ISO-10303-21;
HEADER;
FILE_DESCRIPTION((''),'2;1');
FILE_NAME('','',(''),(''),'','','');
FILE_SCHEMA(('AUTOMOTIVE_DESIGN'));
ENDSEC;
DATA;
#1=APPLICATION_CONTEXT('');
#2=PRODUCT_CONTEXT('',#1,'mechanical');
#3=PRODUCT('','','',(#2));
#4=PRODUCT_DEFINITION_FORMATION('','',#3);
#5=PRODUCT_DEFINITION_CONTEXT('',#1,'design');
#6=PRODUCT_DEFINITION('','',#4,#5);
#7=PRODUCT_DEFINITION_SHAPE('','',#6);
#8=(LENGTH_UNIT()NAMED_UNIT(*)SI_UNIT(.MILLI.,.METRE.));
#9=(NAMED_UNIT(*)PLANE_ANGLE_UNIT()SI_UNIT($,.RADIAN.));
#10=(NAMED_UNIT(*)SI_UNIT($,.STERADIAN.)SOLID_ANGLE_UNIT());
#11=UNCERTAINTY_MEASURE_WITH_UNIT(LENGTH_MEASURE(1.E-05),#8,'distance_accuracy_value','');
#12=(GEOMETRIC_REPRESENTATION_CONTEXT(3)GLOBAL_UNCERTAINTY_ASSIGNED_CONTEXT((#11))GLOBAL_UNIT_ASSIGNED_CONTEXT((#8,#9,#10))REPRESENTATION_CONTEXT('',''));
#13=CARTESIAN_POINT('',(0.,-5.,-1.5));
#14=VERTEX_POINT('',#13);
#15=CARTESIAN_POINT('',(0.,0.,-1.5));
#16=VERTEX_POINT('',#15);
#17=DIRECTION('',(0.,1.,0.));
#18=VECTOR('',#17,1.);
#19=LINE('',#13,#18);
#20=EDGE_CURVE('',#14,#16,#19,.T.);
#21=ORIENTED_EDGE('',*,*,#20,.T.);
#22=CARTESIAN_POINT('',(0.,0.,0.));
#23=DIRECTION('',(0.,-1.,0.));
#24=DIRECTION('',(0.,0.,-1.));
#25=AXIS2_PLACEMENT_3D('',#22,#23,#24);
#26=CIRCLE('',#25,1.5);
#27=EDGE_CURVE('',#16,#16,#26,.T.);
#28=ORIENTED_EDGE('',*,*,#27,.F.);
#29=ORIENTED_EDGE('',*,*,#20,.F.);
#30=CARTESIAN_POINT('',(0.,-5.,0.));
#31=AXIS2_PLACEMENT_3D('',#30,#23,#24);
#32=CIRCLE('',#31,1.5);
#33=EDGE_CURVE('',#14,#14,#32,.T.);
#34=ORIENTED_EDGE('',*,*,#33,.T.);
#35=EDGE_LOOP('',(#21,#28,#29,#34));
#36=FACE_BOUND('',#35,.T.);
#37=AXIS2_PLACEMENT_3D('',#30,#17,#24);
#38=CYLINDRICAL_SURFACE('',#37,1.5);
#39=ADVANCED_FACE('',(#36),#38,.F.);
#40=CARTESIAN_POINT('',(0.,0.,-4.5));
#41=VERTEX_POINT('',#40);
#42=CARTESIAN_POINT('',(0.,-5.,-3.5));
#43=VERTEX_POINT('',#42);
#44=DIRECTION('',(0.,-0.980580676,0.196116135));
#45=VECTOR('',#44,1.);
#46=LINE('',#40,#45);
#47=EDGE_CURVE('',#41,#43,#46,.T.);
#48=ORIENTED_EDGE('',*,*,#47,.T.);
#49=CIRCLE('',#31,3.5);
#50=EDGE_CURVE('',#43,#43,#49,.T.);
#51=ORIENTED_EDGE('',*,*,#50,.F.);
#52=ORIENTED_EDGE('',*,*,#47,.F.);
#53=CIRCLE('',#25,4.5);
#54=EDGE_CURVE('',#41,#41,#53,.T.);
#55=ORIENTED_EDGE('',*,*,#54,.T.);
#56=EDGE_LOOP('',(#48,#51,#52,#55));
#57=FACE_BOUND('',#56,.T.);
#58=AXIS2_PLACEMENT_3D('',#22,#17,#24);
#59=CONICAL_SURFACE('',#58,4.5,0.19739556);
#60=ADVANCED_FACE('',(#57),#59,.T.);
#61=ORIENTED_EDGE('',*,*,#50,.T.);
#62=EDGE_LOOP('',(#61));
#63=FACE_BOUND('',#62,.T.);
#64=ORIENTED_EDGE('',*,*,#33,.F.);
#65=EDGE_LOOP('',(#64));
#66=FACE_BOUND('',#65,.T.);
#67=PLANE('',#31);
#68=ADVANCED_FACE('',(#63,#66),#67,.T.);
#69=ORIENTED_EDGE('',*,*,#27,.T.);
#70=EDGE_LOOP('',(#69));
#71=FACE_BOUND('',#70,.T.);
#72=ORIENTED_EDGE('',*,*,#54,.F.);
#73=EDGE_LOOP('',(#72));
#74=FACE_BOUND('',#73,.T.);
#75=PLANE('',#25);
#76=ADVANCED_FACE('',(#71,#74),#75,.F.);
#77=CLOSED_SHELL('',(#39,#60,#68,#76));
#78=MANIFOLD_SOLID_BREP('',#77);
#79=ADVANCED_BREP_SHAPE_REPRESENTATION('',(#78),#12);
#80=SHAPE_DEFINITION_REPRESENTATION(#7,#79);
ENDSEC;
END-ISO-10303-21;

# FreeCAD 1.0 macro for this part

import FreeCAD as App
import Part
import Sketcher

V = App.Vector
Q = App.Units.Quantity


def add_polygon(sketch, points):
    """Adds a closed chain of lines whose ends are joined by coincident constraints."""
    first, n = sketch.GeometryCount, len(points)
    for a, b in zip(points, points[1:] + points[:1]):
        sketch.addGeometry(Part.LineSegment(App.Vector(*a, 0), App.Vector(*b, 0)), False)
    for i in range(n):
        sketch.addConstraint(Sketcher.Constraint("Coincident", first + i, 2, first + (i + 1) % n, 1))

doc = App.newDocument("Part")
params = doc.addObject("Spreadsheet::Sheet", "Params")
for row, (alias, value) in enumerate([
    ("sketch1_width", "5 mm"),
    ("sketch1_height", "3 mm"),
    ("sketch1_height2", "2 mm"),
    ("revolution_angle", "360 deg"),
], start=1):
    params.set(f"A{row}", alias)
    params.set(f"B{row}", "=" + value)
    params.setAlias(f"B{row}", alias)

body = doc.addObject("PartDesign::Body", "Body")

# Sketch on YZ plane
sketch1 = body.newObject("Sketcher::SketchObject", "Sketch")
sketch1.AttachmentSupport = (doc.getObject("YZ_Plane"), [""])
sketch1.MapMode = "FlatFace"
add_polygon(sketch1, [(0, -4.5), (0, -1.5), (-5, -1.5), (-5, -3.5)])  # lines 0-3
sketch1.addConstraint([
    Sketcher.Constraint("Vertical", 0),
    Sketcher.Constraint("Horizontal", 1),
    Sketcher.Constraint("Vertical", 2),
    Sketcher.Constraint("PointOnObject", 0, 2, -2),
    Sketcher.Constraint("DistanceX", 1, 2, 1, 1, Q("5 mm")),
    Sketcher.Constraint("DistanceY", 0, 1, 0, 2, Q("3 mm")),
    Sketcher.Constraint("DistanceY", 2, 2, 2, 1, Q("2 mm")),
    Sketcher.Constraint("DistanceY", 0, 2, -1, 1, Q("1.5 mm")),
])
sketch1.setExpression("Constraints[8]", "Params.sketch1_width")
sketch1.setExpression("Constraints[9]", "Params.sketch1_height")
sketch1.setExpression("Constraints[10]", "Params.sketch1_height2")
revolution = body.newObject("PartDesign::Revolution", "Revolution")
revolution.Profile = sketch1
revolution.ReferenceAxis = (sketch1, ["H_Axis"])
revolution.setExpression("Angle", "Params.revolution_angle")

doc.recompute()
